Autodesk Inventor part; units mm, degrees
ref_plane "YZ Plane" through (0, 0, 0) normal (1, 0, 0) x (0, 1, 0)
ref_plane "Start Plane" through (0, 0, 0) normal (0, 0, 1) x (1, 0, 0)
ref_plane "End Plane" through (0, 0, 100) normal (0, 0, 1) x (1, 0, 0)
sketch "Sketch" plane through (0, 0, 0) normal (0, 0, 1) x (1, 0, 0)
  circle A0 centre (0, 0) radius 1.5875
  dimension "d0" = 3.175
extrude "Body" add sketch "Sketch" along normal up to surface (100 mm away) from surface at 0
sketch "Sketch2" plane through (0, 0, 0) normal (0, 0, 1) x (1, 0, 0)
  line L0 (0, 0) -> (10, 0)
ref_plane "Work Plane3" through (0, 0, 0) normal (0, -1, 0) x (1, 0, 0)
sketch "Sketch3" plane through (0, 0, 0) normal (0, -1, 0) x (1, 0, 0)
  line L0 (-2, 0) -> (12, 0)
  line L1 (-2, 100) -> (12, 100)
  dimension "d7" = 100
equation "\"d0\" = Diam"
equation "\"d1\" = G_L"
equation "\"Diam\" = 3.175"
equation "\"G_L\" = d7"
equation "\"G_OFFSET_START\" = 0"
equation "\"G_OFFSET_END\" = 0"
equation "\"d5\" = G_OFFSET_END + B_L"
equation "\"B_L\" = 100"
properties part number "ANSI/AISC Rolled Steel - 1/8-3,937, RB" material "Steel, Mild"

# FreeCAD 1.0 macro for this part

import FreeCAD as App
import Part
import Sketcher
from FreeCAD import Vector
Q = App.Units.Quantity

doc = App.newDocument("Part")
body = doc.addObject("PartDesign::Body", "Body")

# Sketch on XY plane
sketch1 = doc.addObject("Sketcher::SketchObject", "Sketch")
body.addObject(sketch1)
sketch1.AttachmentSupport = (doc.XY_Plane, [""])
sketch1.MapMode = "FlatFace"
sketch1.addGeometry(Part.Circle(Vector(0, 0, 0), Vector(0, 0, 1), 1.6), False)
sketch1.addConstraint([
    Sketcher.Constraint("Coincident", 0, 3, -1, 1),
    Sketcher.Constraint("Diameter", 0, Q("0.125 in")),
])
pad1 = doc.addObject("PartDesign::Pad", "Pad")
body.addObject(pad1)
pad1.Profile = sketch1
pad1.Length = Q("3.9370079 in")

doc.recompute()
